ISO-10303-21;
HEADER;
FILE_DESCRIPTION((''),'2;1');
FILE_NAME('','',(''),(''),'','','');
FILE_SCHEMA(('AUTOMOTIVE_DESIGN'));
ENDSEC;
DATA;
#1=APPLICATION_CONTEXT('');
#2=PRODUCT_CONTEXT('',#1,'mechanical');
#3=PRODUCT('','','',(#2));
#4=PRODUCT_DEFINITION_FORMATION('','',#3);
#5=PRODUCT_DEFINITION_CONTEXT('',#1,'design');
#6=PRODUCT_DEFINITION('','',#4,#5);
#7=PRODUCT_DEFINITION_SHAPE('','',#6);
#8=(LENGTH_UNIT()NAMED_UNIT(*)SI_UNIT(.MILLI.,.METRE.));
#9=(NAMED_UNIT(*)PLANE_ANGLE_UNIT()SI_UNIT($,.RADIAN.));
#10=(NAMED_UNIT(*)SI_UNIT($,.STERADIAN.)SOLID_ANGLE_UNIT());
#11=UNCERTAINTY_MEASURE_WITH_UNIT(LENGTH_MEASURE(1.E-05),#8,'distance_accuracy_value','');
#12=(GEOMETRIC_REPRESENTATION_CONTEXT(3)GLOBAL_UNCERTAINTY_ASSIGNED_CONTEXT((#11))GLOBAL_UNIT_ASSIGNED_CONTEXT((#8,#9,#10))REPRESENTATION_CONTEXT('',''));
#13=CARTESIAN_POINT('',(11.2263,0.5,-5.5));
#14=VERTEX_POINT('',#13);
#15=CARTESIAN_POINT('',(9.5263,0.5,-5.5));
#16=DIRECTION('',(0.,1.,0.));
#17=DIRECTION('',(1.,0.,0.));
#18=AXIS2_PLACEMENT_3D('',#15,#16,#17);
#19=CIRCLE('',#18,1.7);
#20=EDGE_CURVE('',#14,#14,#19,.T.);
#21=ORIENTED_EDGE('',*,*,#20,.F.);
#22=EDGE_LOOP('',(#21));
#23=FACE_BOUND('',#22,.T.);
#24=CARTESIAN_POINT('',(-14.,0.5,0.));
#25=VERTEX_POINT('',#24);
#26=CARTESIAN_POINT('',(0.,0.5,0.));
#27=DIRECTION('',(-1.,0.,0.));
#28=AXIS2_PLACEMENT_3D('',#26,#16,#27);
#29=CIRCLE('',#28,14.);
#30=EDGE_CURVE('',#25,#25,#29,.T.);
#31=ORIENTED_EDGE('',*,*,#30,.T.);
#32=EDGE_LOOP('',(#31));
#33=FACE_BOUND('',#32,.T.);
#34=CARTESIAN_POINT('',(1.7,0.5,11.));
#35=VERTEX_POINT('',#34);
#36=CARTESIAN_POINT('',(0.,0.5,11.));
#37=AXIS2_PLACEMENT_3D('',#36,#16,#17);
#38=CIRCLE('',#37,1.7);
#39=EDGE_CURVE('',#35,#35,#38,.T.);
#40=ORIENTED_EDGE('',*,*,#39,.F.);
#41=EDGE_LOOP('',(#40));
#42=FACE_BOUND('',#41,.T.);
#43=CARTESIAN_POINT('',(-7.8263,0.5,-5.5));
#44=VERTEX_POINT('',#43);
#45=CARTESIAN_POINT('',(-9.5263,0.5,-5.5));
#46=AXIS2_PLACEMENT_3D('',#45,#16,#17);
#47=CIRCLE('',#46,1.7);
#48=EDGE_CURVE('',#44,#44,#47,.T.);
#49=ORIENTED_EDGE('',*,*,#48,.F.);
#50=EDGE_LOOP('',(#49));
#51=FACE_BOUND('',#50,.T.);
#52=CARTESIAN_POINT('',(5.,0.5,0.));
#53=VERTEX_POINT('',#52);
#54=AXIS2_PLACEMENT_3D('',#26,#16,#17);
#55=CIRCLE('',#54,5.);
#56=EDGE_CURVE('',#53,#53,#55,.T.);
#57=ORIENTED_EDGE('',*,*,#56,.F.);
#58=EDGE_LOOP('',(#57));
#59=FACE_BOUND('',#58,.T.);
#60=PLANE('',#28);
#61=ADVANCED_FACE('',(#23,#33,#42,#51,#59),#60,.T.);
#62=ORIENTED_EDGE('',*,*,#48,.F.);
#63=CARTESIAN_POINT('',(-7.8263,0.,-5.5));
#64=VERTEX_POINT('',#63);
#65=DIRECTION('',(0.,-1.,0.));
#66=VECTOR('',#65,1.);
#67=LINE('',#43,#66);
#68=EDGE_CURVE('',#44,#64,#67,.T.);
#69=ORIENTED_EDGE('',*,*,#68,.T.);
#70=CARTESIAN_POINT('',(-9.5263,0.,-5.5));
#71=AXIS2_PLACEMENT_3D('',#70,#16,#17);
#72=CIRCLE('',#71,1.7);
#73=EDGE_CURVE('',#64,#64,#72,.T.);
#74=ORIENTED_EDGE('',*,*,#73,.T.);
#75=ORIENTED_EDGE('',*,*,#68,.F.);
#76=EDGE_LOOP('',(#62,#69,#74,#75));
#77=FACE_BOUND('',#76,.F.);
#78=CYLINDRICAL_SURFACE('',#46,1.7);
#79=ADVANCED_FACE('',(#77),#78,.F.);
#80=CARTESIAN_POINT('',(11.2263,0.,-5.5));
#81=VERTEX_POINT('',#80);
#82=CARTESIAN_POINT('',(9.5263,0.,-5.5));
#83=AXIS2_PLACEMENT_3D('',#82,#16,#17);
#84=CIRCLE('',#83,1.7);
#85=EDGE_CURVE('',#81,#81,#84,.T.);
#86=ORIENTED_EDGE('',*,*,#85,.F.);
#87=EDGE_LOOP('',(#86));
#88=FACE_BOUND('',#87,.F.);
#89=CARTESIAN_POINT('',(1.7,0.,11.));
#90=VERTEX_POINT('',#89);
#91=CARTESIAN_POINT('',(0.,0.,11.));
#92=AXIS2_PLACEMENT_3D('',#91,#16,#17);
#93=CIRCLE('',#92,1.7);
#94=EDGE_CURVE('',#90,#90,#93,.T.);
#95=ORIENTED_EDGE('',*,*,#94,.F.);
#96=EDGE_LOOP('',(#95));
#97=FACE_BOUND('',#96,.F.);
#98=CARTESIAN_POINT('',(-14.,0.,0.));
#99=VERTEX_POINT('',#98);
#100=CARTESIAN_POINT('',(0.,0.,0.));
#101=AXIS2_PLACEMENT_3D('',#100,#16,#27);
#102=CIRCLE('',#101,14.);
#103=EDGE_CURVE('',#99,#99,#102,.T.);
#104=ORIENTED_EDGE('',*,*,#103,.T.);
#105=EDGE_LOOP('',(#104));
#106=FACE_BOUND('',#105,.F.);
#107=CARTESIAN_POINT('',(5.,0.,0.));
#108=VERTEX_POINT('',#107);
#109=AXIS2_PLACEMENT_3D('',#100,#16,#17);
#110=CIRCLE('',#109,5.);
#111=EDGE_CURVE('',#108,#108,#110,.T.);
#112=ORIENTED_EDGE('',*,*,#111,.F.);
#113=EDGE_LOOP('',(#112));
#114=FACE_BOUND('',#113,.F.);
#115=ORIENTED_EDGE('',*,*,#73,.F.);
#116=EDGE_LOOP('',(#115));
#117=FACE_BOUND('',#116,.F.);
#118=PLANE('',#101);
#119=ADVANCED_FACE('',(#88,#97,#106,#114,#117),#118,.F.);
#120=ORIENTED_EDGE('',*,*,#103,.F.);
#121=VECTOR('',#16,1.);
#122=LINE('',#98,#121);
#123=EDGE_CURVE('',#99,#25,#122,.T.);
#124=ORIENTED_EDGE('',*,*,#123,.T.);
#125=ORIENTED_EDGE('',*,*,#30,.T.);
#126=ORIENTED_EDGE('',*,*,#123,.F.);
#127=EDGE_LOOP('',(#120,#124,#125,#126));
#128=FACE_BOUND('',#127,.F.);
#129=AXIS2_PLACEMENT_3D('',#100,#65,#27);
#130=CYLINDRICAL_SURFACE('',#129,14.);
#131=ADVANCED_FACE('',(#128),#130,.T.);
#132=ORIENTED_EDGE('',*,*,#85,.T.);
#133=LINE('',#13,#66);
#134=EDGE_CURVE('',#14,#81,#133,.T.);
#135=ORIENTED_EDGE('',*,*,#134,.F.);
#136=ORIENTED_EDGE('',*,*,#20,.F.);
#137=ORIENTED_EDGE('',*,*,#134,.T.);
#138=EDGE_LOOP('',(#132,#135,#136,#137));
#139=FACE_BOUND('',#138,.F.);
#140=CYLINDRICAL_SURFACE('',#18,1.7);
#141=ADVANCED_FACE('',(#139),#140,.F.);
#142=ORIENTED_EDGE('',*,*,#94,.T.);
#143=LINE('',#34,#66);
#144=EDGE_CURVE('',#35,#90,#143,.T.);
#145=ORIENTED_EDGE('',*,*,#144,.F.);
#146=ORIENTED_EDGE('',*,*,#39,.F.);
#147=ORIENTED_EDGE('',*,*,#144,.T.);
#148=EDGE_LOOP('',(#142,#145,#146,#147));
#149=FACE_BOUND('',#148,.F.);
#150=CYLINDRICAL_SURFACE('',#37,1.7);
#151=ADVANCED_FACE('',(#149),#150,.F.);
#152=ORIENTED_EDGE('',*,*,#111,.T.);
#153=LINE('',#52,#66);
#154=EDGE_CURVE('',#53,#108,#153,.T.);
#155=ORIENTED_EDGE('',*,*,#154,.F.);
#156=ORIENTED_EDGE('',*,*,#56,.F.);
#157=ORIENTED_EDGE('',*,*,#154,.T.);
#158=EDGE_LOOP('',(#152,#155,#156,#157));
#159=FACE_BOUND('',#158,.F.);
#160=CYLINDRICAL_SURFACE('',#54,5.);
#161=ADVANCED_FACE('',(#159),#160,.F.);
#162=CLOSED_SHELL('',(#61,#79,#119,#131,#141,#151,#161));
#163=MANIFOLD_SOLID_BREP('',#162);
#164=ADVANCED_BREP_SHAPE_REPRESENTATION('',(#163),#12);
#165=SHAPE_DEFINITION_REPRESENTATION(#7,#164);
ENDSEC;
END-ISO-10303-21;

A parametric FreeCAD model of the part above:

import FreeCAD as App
import Part
import Sketcher

V = App.Vector
Q = App.Units.Quantity

doc = App.newDocument("Part")
body = doc.addObject("PartDesign::Body", "Body")

sketch1 = body.newObject("Sketcher::SketchObject", "Sketch")
sketch1.AttachmentSupport = (doc.getObject("XZ_Plane"), [""])
sketch1.MapMode = "FlatFace"
sketch1.addGeometry(Part.Circle(V(0, 0, 0), V(0, 0, 1), 14), False)
sketch1.addConstraint(Sketcher.Constraint("Coincident", 0, 3, -1, 1))
sketch1.addConstraint(Sketcher.Constraint("Diameter", 0, Q("28 mm")))
pad1 = body.newObject("PartDesign::Pad", "Pad")
pad1.Profile = sketch1
pad1.Length = 0.5
pad1.Reversed = True

sketch2 = body.newObject("Sketcher::SketchObject", "Sketch001")
sketch2.AttachmentSupport = (doc.getObject("XZ_Plane"), [""])
sketch2.MapMode = "FlatFace"
sketch2.AttachmentOffset = App.Placement(V(0, 0, -0.5), App.Rotation())
sketch2.addGeometry(Part.Circle(V(0, 11, 0), V(0, 0, 1), 1.7), False)
sketch2.addGeometry(Part.Circle(V(9.5, -5.5, 0), V(0, 0, 1), 1.7), False)
sketch2.addGeometry(Part.Circle(V(-9.5, -5.5, 0), V(0, 0, 1), 1.7), False)
sketch2.addConstraint(Sketcher.Constraint("Equal", 0, 1))
sketch2.addConstraint(Sketcher.Constraint("Equal", 1, 2))
sketch2.addConstraint(Sketcher.Constraint("Symmetric", 1, 3, 2, 3, -2))
sketch2.addConstraint(Sketcher.Constraint("PointOnObject", 0, 3, -2))
sketch2.addConstraint(Sketcher.Constraint("Diameter", 0, Q("3.4 mm")))
sketch2.addConstraint(Sketcher.Constraint("DistanceY", -1, 1, 0, 3, Q("11 mm")))
sketch2.addConstraint(Sketcher.Constraint("DistanceY", 1, 3, -1, 1, Q("5.5 mm")))
sketch2.addConstraint(Sketcher.Constraint("DistanceX", -1, 1, 1, 3, Q("9.5263 mm")))
pocket1 = body.newObject("PartDesign::Pocket", "Pocket")
pocket1.Profile = sketch2
pocket1.Type = "ThroughAll"
pocket1.Reversed = True

sketch3 = body.newObject("Sketcher::SketchObject", "Sketch002")
sketch3.AttachmentSupport = (doc.getObject("XZ_Plane"), [""])
sketch3.MapMode = "FlatFace"
sketch3.AttachmentOffset = App.Placement(V(0, 0, -0.5), App.Rotation())
sketch3.addGeometry(Part.Circle(V(0, 0, 0), V(0, 0, 1), 5), False)
sketch3.addConstraint(Sketcher.Constraint("Coincident", 0, 3, -1, 1))
sketch3.addConstraint(Sketcher.Constraint("Diameter", 0, Q("10 mm")))
pocket2 = body.newObject("PartDesign::Pocket", "Pocket001")
pocket2.Profile = sketch3
pocket2.Type = "ThroughAll"
pocket2.Reversed = True

doc.recompute()
